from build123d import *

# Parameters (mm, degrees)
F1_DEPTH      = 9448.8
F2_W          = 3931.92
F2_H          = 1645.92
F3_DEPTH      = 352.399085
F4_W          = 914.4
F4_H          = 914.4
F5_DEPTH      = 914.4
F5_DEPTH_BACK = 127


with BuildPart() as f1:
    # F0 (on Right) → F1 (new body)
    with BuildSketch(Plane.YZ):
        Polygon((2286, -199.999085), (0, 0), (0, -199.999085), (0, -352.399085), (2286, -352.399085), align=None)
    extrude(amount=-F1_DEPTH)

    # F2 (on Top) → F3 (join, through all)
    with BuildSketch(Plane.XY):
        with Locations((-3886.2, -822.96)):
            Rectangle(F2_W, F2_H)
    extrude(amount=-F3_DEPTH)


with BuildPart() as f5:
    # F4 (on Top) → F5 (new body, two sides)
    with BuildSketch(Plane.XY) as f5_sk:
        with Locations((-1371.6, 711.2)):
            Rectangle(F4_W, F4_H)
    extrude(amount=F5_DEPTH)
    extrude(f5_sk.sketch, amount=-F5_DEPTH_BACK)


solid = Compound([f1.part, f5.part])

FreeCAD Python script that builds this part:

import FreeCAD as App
import Part
import Sketcher

V = App.Vector
Q = App.Units.Quantity

doc = App.newDocument("Part")
body = doc.addObject("PartDesign::Body", "Body")

# Sketch on YZ plane
sketch1 = doc.addObject("Sketcher::SketchObject", "Sketch")
body.addObject(sketch1)
sketch1.AttachmentSupport = (doc.YZ_Plane, [""])
sketch1.MapMode = "FlatFace"
sketch1.addGeometry(Part.LineSegment(V(2286, -200, 0), V(0, 0, 0)), False)
sketch1.addGeometry(Part.LineSegment(V(0, 0, 0), V(0, -352, 0)), False)
sketch1.addGeometry(Part.LineSegment(V(0, -352, 0), V(2286, -352, 0)), False)
sketch1.addGeometry(Part.LineSegment(V(2286, -352, 0), V(2286, -200, 0)), False)
sketch1.addConstraint(Sketcher.Constraint("Coincident", 0, 2, 1, 1))
sketch1.addConstraint(Sketcher.Constraint("Coincident", 1, 2, 2, 1))
sketch1.addConstraint(Sketcher.Constraint("Coincident", 2, 2, 3, 1))
sketch1.addConstraint(Sketcher.Constraint("Coincident", 3, 2, 0, 1))
sketch1.addConstraint(Sketcher.Constraint("Vertical", 1))
sketch1.addConstraint(Sketcher.Constraint("Horizontal", 2))
sketch1.addConstraint(Sketcher.Constraint("Vertical", 3))
sketch1.addConstraint(Sketcher.Constraint("Coincident", 0, 2, -1, 1))
sketch1.addConstraint(Sketcher.Constraint("DistanceX", 2, 1, 2, 2, Q("90 in")))
sketch1.addConstraint(Sketcher.Constraint("DistanceY", 3, 1, 3, 2, Q("6 in")))
sketch1.addConstraint(Sketcher.Constraint("Angle", 0, Q("175 deg")))
pad1 = doc.addObject("PartDesign::Pad", "Pad")
body.addObject(pad1)
pad1.Profile = sketch1
pad1.Length = Q("372 in")
pad1.Reversed = True

# Sketch on XY plane
sketch2 = doc.addObject("Sketcher::SketchObject", "Sketch001")
body.addObject(sketch2)
sketch2.AttachmentSupport = (doc.XY_Plane, [""])
sketch2.MapMode = "FlatFace"
sketch2.addGeometry(Part.LineSegment(V(-5852, 0, 0), V(-5852, -1646, 0)), False)
sketch2.addGeometry(Part.LineSegment(V(-5852, -1646, 0), V(-1920, -1646, 0)), False)
sketch2.addGeometry(Part.LineSegment(V(-1920, -1646, 0), V(-1920, 0, 0)), False)
sketch2.addGeometry(Part.LineSegment(V(-1920, 0, 0), V(-5852, 0, 0)), False)
sketch2.addConstraint(Sketcher.Constraint("Coincident", 0, 2, 1, 1))
sketch2.addConstraint(Sketcher.Constraint("Coincident", 1, 2, 2, 1))
sketch2.addConstraint(Sketcher.Constraint("Coincident", 2, 2, 3, 1))
sketch2.addConstraint(Sketcher.Constraint("Coincident", 3, 2, 0, 1))
sketch2.addConstraint(Sketcher.Constraint("Vertical", 0))
sketch2.addConstraint(Sketcher.Constraint("Horizontal", 1))
sketch2.addConstraint(Sketcher.Constraint("Vertical", 2))
sketch2.addConstraint(Sketcher.Constraint("Horizontal", 3))
sketch2.addConstraint(Sketcher.Constraint("PointOnObject", 2, 2, -1))
sketch2.addConstraint(Sketcher.Constraint("DistanceX", 1, 1, 1, 2, Q("154.8 in")))
sketch2.addConstraint(Sketcher.Constraint("DistanceY", 0, 2, 0, 1, Q("64.8 in")))
sketch2.addConstraint(Sketcher.Constraint("DistanceX", 0, 2, -1, 1, Q("230.4 in")))
pad2 = doc.addObject("PartDesign::Pad", "Pad001")
body.addObject(pad2)
pad2.Profile = sketch2
pad2.Length = 352.399085
pad2.Reversed = True
body2 = doc.addObject("PartDesign::Body", "Body001")

# Sketch on XY plane
sketch3 = doc.addObject("Sketcher::SketchObject", "Sketch002")
body2.addObject(sketch3)
sketch3.AttachmentSupport = (doc.getObject("XY_Plane001"), [""])
sketch3.MapMode = "FlatFace"
sketch3.addGeometry(Part.LineSegment(V(-1829, 1168, 0), V(-1829, 254, 0)), False)
sketch3.addGeometry(Part.LineSegment(V(-1829, 254, 0), V(-914, 254, 0)), False)
sketch3.addGeometry(Part.LineSegment(V(-914, 254, 0), V(-914, 1168, 0)), False)
sketch3.addGeometry(Part.LineSegment(V(-914, 1168, 0), V(-1829, 1168, 0)), False)
sketch3.addConstraint(Sketcher.Constraint("Coincident", 0, 2, 1, 1))
sketch3.addConstraint(Sketcher.Constraint("Coincident", 1, 2, 2, 1))
sketch3.addConstraint(Sketcher.Constraint("Coincident", 2, 2, 3, 1))
sketch3.addConstraint(Sketcher.Constraint("Coincident", 3, 2, 0, 1))
sketch3.addConstraint(Sketcher.Constraint("Vertical", 0))
sketch3.addConstraint(Sketcher.Constraint("Horizontal", 1))
sketch3.addConstraint(Sketcher.Constraint("Vertical", 2))
sketch3.addConstraint(Sketcher.Constraint("Horizontal", 3))
sketch3.addConstraint(Sketcher.Constraint("Equal", 3, 0))
sketch3.addConstraint(Sketcher.Constraint("DistanceX", 1, 1, 1, 2, Q("36 in")))
sketch3.addConstraint(Sketcher.Constraint("DistanceX", 0, 2, -1, 1, Q("72 in")))
sketch3.addConstraint(Sketcher.Constraint("DistanceY", -1, 1, 0, 2, Q("10 in")))
pad3 = doc.addObject("PartDesign::Pad", "Pad002")
body2.addObject(pad3)
pad3.Profile = sketch3
pad3.Type = "TwoLengths"
pad3.Length = Q("36 in")
pad3.Length2 = Q("5 in")

doc.recompute()
